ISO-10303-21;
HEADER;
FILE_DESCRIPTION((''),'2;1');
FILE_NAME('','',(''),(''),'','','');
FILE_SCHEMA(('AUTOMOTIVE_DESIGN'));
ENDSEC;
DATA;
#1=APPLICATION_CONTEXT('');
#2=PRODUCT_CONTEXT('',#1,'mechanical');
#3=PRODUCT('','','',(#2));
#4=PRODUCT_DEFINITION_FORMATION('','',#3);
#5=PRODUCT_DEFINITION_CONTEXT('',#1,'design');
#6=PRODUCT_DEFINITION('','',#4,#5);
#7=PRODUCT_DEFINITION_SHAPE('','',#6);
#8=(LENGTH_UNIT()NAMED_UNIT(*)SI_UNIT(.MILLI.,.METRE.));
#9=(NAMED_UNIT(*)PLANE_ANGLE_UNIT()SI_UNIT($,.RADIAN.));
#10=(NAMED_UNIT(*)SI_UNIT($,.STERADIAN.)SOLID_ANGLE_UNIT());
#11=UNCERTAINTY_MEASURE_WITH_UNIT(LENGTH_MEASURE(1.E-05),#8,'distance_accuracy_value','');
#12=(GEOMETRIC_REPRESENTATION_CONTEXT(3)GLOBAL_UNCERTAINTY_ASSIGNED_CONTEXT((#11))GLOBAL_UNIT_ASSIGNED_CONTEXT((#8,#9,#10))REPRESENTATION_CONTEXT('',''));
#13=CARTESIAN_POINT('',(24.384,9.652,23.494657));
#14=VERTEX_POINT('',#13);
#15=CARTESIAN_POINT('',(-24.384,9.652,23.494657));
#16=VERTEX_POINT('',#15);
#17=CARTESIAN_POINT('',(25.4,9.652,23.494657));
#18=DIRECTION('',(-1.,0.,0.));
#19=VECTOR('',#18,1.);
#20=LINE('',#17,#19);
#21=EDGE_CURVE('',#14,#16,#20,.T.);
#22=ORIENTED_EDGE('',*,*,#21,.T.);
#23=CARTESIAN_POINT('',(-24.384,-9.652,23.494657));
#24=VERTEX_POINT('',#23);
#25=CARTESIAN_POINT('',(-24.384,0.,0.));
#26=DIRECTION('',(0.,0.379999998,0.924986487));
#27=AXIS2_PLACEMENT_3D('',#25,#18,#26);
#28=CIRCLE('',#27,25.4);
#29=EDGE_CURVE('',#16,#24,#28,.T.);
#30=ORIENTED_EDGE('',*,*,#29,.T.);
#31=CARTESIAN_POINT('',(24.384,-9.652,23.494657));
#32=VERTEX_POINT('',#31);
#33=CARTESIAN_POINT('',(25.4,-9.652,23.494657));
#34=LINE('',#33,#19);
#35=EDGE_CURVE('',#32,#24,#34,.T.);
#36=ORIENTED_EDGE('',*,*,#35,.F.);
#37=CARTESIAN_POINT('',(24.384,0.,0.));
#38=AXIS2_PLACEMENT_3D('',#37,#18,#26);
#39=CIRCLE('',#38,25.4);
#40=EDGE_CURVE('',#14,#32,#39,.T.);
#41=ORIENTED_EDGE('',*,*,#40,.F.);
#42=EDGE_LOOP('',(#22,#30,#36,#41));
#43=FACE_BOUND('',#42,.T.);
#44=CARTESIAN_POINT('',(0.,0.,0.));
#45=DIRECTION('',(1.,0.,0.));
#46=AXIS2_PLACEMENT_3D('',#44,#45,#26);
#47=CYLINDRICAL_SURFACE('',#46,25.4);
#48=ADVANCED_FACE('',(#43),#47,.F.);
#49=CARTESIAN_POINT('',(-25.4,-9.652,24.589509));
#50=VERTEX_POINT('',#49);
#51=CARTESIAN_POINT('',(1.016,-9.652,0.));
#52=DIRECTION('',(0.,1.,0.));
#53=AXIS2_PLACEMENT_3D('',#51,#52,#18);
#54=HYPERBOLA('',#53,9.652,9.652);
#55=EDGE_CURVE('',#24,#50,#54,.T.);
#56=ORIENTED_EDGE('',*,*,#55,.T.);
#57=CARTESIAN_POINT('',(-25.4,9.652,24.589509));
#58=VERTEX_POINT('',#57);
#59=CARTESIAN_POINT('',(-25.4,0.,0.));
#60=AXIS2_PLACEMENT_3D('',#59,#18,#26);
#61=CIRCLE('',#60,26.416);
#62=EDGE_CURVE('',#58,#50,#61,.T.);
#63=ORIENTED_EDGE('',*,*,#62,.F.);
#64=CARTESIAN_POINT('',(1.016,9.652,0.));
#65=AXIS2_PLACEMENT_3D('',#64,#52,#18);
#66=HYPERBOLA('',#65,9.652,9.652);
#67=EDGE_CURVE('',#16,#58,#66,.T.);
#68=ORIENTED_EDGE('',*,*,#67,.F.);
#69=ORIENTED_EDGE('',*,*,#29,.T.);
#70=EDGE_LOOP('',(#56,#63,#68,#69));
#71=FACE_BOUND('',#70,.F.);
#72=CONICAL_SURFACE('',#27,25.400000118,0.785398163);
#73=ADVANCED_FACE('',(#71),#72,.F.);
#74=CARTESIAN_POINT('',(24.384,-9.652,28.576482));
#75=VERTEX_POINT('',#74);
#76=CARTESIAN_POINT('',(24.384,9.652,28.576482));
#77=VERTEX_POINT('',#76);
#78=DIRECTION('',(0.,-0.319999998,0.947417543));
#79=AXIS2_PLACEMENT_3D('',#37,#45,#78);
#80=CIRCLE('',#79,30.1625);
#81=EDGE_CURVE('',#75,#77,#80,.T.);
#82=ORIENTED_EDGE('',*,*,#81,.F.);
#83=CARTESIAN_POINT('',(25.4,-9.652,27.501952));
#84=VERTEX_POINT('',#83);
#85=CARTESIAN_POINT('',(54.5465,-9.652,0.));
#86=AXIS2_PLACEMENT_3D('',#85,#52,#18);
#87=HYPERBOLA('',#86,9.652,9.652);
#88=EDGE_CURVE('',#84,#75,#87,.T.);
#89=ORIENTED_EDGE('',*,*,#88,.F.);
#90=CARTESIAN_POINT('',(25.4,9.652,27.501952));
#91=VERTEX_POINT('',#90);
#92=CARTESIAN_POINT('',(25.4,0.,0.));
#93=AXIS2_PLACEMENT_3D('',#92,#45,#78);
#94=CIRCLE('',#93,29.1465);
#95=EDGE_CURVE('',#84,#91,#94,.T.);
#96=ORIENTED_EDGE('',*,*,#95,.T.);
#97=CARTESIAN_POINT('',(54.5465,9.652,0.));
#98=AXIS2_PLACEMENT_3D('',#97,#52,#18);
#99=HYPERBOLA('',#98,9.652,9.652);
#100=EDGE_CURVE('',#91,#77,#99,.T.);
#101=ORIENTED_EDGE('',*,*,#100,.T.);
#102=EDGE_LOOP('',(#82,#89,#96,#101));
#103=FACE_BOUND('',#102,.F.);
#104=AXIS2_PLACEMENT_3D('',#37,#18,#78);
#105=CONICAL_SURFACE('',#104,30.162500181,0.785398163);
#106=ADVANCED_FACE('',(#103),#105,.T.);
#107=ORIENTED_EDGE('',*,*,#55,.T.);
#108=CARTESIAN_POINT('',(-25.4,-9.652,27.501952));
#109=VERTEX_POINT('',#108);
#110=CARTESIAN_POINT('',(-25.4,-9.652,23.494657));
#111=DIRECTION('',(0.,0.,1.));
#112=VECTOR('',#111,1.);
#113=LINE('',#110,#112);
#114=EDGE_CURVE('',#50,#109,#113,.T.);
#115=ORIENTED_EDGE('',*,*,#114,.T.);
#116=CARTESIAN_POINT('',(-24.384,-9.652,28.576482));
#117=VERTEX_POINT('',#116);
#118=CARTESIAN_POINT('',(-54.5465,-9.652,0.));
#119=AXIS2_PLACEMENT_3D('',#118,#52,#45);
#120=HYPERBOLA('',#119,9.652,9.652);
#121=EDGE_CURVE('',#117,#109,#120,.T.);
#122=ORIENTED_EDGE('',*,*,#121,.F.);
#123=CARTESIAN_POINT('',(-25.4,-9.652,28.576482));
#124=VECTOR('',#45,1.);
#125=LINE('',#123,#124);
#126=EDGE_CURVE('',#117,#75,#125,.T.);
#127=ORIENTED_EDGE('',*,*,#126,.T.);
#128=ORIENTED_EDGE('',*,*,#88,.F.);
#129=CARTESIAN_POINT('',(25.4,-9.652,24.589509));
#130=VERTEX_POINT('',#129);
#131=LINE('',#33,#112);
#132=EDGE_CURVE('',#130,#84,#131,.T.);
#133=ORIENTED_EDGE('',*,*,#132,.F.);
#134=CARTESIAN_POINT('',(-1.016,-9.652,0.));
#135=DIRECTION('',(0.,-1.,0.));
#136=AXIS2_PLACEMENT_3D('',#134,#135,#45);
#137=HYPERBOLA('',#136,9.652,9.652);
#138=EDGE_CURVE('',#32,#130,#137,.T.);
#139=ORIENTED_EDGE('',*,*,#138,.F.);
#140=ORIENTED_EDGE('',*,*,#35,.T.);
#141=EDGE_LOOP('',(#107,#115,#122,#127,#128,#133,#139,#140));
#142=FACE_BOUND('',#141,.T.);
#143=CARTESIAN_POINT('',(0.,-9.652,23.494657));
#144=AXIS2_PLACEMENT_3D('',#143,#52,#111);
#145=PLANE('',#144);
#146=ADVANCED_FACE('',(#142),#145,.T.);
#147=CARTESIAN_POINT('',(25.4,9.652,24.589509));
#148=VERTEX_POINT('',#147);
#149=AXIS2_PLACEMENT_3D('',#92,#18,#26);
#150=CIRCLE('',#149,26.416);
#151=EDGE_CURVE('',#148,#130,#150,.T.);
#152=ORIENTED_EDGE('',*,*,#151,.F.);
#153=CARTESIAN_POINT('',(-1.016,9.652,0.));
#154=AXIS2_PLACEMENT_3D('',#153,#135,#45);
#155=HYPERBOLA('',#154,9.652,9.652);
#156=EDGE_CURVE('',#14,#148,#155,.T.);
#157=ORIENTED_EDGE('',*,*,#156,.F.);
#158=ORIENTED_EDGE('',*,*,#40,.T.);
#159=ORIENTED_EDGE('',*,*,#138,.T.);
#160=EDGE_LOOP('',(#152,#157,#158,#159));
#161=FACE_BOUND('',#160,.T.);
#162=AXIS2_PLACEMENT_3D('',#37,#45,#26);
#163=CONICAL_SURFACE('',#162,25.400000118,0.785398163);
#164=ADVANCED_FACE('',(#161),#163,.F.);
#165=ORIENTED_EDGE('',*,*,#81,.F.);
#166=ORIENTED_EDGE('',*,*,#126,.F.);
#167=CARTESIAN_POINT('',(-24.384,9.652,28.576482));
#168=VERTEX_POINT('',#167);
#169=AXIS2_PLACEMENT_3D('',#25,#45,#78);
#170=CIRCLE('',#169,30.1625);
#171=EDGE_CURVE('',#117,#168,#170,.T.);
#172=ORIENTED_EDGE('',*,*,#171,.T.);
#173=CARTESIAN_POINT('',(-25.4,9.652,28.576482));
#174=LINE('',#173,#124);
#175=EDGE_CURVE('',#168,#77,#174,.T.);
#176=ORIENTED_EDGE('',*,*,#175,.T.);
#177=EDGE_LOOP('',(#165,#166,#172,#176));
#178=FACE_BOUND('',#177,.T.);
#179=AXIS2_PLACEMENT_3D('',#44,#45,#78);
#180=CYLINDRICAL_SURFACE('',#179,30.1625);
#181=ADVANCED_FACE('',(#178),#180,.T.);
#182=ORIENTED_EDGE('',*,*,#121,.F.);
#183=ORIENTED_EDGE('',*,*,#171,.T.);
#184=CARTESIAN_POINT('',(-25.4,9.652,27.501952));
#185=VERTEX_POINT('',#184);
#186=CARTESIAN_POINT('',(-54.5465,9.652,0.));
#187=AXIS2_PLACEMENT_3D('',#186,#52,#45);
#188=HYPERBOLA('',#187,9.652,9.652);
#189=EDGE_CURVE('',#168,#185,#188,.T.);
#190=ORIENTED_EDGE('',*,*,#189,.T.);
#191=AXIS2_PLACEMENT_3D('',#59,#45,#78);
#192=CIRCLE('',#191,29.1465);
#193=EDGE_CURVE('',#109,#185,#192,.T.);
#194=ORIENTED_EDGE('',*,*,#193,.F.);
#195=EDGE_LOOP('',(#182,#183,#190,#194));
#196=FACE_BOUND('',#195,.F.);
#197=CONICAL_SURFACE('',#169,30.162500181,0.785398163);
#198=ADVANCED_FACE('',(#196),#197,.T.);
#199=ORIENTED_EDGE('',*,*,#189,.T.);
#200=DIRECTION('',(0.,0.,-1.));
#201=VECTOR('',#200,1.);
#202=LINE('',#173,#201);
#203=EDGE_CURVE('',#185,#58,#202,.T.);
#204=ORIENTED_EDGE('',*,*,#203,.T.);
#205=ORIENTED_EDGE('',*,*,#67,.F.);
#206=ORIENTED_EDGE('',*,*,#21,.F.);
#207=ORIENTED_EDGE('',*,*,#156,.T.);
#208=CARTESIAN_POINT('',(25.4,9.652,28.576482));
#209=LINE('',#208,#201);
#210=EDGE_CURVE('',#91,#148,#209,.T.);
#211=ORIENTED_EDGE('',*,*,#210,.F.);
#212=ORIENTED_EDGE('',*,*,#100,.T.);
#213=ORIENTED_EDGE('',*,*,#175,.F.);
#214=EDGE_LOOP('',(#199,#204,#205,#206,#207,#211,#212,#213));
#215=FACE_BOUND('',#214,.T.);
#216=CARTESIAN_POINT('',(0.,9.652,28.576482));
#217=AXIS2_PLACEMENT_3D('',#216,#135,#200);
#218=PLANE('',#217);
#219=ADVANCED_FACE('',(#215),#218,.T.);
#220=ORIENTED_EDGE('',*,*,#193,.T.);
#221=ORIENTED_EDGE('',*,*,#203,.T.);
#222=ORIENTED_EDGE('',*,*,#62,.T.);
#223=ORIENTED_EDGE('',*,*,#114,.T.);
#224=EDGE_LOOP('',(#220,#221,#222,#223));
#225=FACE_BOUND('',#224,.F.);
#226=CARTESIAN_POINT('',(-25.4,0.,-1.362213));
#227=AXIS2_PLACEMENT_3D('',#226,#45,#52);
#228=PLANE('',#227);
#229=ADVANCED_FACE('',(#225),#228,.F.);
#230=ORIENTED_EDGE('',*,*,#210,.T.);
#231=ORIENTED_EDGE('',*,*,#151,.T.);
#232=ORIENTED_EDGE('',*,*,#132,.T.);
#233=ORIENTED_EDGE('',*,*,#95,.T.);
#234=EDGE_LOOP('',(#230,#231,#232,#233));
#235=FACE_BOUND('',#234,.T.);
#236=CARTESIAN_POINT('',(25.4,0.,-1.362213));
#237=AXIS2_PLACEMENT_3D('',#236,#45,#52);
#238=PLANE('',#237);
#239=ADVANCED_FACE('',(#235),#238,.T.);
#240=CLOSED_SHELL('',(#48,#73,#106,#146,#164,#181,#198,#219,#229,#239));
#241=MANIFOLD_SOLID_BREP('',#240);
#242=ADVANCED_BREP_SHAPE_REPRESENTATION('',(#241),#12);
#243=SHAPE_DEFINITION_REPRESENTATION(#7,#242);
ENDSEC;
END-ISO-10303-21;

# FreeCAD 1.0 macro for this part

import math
import FreeCAD as App
import Part
import Sketcher

V = App.Vector
Q = App.Units.Quantity


def edges_at(feature, points):
    """Names of the edges that pass closest to the given points."""
    edges = feature.Shape.Edges
    near = lambda p: min(range(len(edges)), key=lambda i: edges[i].distToShape(Part.Vertex(*p))[0])
    return sorted({f"Edge{near(p) + 1}" for p in points})

doc = App.newDocument("Part")
body = doc.addObject("PartDesign::Body", "Body")

# Sketch on YZ plane
sketch1 = body.newObject("Sketcher::SketchObject", "Sketch")
sketch1.AttachmentSupport = (doc.getObject("YZ_Plane"), [""])
sketch1.MapMode = "FlatFace"
sketch1.addGeometry(Part.LineSegment(V(-10, 23, 0), V(-10, 29, 0)), False)
sketch1.addGeometry(Part.ArcOfCircle(Part.Circle(V(0, 0, 0), V(0, 0, 1), 30), math.radians(109), math.radians(431)), False)
sketch1.addGeometry(Part.LineSegment(V(10, 29, 0), V(10, 23, 0)), False)
sketch1.addGeometry(Part.ArcOfCircle(Part.Circle(V(0, 0, 0), V(0, 0, 1), 25), math.radians(112), math.radians(428)), False)
sketch1.addConstraint(Sketcher.Constraint("Coincident", 0, 2, 1, 1))
sketch1.addConstraint(Sketcher.Constraint("Coincident", 1, 2, 2, 1))
sketch1.addConstraint(Sketcher.Constraint("Coincident", 2, 2, 3, 2))
sketch1.addConstraint(Sketcher.Constraint("Coincident", 3, 1, 0, 1))
sketch1.addConstraint(Sketcher.Constraint("Vertical", 0))
sketch1.addConstraint(Sketcher.Constraint("Vertical", 2))
sketch1.addConstraint(Sketcher.Constraint("Coincident", 1, 3, -1, 1))
sketch1.addConstraint(Sketcher.Constraint("Coincident", 3, 3, -1, 1))
sketch1.addConstraint(Sketcher.Constraint("Horizontal", 0, 2, 1, 2))
sketch1.addConstraint(Sketcher.Constraint("Radius", 3, Q("1 in")))
sketch1.addConstraint(Sketcher.Constraint("Radius", 1, Q("1.1875 in")))
sketch1.addConstraint(Sketcher.Constraint("DistanceX", 0, 2, -1, 1, Q("0.38 in")))
pad1 = body.newObject("PartDesign::Pad", "Pad")
pad1.Profile = sketch1
pad1.Length = Q("2 in")
pad1.Midplane = True
doc.recompute()

chamfer = body.newObject("PartDesign::Chamfer", "Chamfer")
chamfer.Base = (pad1, edges_at(pad1, [
    (25.4, 0, -30.163),
    (25.4, 0, -25.4),
    (-25.4, 0, -30.163),
    (-25.4, 0, -25.4),
]))
chamfer.Size = Q("0.04 in")

doc.recompute()
